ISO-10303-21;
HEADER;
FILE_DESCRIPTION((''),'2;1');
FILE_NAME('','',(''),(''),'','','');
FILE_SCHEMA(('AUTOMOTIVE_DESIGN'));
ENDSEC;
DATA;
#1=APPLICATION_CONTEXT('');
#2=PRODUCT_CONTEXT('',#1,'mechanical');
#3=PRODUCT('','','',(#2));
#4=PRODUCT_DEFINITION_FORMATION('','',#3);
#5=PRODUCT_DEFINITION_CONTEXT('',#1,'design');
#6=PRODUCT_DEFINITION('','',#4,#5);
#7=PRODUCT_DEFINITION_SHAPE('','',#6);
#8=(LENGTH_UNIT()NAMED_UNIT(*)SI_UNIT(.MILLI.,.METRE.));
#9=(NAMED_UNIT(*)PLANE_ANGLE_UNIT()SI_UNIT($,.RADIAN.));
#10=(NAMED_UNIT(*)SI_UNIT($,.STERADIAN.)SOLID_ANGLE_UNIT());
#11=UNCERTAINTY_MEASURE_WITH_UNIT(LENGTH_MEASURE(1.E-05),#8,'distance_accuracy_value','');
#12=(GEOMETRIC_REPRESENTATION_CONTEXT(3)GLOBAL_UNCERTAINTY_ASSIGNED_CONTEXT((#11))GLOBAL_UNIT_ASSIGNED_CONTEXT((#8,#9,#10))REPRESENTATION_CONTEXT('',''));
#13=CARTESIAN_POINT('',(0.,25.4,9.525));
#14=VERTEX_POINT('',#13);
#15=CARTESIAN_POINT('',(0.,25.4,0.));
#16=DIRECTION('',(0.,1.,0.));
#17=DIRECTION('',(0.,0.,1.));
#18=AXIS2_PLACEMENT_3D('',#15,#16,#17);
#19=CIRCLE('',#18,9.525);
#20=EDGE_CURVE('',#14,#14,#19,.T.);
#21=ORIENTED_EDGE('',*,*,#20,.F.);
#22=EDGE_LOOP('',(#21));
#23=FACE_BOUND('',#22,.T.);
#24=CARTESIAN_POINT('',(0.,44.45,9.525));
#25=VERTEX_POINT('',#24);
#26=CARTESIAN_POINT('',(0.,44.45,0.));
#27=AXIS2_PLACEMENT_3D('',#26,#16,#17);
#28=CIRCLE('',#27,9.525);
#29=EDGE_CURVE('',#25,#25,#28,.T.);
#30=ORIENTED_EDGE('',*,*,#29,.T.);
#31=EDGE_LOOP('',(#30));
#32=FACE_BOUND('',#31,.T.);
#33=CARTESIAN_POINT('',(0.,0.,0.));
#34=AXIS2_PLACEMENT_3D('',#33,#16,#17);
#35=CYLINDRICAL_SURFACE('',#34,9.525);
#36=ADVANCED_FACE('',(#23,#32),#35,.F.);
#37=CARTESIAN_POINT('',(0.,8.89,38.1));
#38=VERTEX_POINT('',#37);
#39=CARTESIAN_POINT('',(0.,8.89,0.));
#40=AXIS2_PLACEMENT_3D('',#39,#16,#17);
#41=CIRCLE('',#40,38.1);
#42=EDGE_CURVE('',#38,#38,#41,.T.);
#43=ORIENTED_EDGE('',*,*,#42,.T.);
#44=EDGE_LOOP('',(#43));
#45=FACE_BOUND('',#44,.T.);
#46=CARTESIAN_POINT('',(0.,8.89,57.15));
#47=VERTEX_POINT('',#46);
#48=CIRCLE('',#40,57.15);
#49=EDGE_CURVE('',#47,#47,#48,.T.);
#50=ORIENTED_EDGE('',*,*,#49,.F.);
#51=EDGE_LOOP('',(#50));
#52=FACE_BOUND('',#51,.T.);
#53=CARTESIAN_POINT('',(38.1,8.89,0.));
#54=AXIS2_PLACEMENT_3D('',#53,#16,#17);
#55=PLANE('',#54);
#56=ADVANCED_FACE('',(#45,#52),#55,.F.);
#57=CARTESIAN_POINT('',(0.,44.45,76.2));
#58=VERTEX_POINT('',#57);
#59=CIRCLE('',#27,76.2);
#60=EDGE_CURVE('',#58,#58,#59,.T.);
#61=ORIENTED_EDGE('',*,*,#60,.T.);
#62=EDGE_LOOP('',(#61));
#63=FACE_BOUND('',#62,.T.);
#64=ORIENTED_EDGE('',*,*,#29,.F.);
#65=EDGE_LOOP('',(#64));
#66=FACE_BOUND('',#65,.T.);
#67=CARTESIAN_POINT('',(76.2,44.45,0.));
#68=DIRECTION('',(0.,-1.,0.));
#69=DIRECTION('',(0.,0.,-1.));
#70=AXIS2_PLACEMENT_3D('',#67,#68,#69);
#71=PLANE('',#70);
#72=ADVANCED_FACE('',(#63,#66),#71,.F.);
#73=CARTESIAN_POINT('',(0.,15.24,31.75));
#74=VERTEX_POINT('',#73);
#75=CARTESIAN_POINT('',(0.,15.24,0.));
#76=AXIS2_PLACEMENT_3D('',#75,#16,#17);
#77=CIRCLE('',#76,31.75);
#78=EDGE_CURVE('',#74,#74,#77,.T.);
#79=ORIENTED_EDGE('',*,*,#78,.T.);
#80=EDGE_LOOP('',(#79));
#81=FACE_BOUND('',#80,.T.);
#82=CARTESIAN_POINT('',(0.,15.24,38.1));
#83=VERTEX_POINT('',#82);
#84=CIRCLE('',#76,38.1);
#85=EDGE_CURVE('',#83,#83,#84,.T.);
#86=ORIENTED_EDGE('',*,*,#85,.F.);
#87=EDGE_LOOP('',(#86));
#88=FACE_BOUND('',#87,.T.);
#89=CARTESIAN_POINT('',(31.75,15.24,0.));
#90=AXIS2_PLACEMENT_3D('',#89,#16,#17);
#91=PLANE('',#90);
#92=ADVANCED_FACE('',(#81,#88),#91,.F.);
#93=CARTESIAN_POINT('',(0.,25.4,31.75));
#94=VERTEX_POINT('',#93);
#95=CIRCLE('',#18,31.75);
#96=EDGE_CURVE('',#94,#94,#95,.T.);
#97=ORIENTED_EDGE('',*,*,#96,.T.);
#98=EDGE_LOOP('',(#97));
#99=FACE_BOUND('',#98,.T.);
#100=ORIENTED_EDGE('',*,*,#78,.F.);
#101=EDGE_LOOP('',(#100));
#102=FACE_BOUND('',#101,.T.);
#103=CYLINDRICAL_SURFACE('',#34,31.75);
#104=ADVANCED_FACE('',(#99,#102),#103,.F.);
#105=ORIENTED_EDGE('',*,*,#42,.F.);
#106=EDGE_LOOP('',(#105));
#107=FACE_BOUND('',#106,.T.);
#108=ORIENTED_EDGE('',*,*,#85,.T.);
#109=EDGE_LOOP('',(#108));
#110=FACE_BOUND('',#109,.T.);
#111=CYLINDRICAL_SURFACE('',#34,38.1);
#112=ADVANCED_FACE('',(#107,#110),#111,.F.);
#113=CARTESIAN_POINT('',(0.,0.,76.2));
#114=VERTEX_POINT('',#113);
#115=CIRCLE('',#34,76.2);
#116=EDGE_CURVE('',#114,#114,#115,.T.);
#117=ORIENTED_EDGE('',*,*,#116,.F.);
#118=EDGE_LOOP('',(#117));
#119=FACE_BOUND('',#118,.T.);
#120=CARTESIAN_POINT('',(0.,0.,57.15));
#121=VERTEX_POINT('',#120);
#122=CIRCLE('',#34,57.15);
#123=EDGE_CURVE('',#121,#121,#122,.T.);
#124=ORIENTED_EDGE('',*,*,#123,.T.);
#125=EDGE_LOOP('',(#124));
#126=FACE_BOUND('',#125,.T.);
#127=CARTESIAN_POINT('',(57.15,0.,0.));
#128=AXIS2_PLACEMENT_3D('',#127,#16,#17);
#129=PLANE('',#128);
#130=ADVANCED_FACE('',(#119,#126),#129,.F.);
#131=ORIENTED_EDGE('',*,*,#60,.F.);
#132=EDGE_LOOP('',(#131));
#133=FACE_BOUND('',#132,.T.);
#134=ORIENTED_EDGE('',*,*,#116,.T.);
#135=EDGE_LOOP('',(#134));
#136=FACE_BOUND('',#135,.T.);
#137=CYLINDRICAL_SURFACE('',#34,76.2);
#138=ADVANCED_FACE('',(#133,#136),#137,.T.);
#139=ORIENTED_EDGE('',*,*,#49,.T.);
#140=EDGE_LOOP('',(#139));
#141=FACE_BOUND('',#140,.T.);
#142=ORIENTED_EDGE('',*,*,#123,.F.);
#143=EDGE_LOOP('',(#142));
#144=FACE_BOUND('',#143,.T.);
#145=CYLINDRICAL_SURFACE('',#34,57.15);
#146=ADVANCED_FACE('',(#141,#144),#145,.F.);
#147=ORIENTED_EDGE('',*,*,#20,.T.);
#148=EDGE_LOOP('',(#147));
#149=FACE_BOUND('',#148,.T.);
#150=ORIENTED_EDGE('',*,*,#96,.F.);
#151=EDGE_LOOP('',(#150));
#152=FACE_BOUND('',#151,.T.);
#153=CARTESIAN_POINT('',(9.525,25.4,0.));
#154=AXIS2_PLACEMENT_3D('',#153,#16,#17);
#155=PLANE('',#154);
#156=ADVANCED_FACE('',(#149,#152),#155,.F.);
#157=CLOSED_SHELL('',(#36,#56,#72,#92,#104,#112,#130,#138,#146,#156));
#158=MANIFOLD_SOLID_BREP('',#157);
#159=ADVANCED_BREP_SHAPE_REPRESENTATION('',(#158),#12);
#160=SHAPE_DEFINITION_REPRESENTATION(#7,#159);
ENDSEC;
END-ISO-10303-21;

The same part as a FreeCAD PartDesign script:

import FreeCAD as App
import Part
import Sketcher
Q = App.Units.Quantity

doc = App.newDocument("Part")
body = doc.addObject("PartDesign::Body", "Body")

# Sketch on XY plane
sketch1 = body.newObject("Sketcher::SketchObject", "Sketch")
sketch1.AttachmentSupport = (doc.getObject("XY_Plane"), [""])
sketch1.MapMode = "FlatFace"
sketch1.addGeometry([
    Part.LineSegment(App.Vector(10, 44, 0), App.Vector(10, 25, 0)),  # 0
    Part.LineSegment(App.Vector(10, 25, 0), App.Vector(32, 25, 0)),  # 1
    Part.LineSegment(App.Vector(32, 25, 0), App.Vector(32, 15, 0)),  # 2
    Part.LineSegment(App.Vector(32, 15, 0), App.Vector(38, 15, 0)),  # 3
    Part.LineSegment(App.Vector(38, 15, 0), App.Vector(38, 9, 0)),  # 4
    Part.LineSegment(App.Vector(38, 9, 0), App.Vector(57, 9, 0)),  # 5
    Part.LineSegment(App.Vector(57, 9, 0), App.Vector(57, 0, 0)),  # 6
    Part.LineSegment(App.Vector(57, 0, 0), App.Vector(76, 0, 0)),  # 7
    Part.LineSegment(App.Vector(76, 0, 0), App.Vector(76, 44, 0)),  # 8
    Part.LineSegment(App.Vector(76, 44, 0), App.Vector(10, 44, 0)),  # 9
], False)
sketch1.addConstraint([
    Sketcher.Constraint("Coincident", 0, 2, 1, 1),
    Sketcher.Constraint("Coincident", 1, 2, 2, 1),
    Sketcher.Constraint("Coincident", 2, 2, 3, 1),
    Sketcher.Constraint("Coincident", 3, 2, 4, 1),
    Sketcher.Constraint("Coincident", 4, 2, 5, 1),
    Sketcher.Constraint("Coincident", 5, 2, 6, 1),
    Sketcher.Constraint("Coincident", 6, 2, 7, 1),
    Sketcher.Constraint("Coincident", 7, 2, 8, 1),
    Sketcher.Constraint("Coincident", 8, 2, 9, 1),
    Sketcher.Constraint("Coincident", 9, 2, 0, 1),
    Sketcher.Constraint("Vertical", 0),
    Sketcher.Constraint("Horizontal", 1),
    Sketcher.Constraint("Vertical", 2),
    Sketcher.Constraint("Horizontal", 3),
    Sketcher.Constraint("Vertical", 4),
    Sketcher.Constraint("Horizontal", 5),
    Sketcher.Constraint("Vertical", 6),
    Sketcher.Constraint("Horizontal", 7),
    Sketcher.Constraint("Vertical", 8),
    Sketcher.Constraint("Horizontal", 9),
    Sketcher.Constraint("PointOnObject", 6, 2, -1),
    Sketcher.Constraint("Equal", 5, 7),
    Sketcher.Constraint("Equal", 7, 0),
    Sketcher.Constraint("Equal", 3, 4),
    Sketcher.Constraint("DistanceY", 2, 2, 2, 1, Q("0.4 in")),
    Sketcher.Constraint("DistanceY", -1, 1, 0, 2, Q("1 in")),
    Sketcher.Constraint("DistanceX", -1, 1, 7, 2, Q("3 in")),
    Sketcher.Constraint("DistanceX", 2, 2, 5, 2, Q("1 in")),
    Sketcher.Constraint("DistanceX", 3, 1, 3, 2, Q("0.25 in")),
    Sketcher.Constraint("DistanceX", 1, 1, 1, 2, Q("0.875 in")),
])
revolution = body.newObject("PartDesign::Revolution", "Revolution")
revolution.Profile = sketch1
revolution.ReferenceAxis = (sketch1, ["V_Axis"])
revolution.Angle = 360

doc.recompute()
